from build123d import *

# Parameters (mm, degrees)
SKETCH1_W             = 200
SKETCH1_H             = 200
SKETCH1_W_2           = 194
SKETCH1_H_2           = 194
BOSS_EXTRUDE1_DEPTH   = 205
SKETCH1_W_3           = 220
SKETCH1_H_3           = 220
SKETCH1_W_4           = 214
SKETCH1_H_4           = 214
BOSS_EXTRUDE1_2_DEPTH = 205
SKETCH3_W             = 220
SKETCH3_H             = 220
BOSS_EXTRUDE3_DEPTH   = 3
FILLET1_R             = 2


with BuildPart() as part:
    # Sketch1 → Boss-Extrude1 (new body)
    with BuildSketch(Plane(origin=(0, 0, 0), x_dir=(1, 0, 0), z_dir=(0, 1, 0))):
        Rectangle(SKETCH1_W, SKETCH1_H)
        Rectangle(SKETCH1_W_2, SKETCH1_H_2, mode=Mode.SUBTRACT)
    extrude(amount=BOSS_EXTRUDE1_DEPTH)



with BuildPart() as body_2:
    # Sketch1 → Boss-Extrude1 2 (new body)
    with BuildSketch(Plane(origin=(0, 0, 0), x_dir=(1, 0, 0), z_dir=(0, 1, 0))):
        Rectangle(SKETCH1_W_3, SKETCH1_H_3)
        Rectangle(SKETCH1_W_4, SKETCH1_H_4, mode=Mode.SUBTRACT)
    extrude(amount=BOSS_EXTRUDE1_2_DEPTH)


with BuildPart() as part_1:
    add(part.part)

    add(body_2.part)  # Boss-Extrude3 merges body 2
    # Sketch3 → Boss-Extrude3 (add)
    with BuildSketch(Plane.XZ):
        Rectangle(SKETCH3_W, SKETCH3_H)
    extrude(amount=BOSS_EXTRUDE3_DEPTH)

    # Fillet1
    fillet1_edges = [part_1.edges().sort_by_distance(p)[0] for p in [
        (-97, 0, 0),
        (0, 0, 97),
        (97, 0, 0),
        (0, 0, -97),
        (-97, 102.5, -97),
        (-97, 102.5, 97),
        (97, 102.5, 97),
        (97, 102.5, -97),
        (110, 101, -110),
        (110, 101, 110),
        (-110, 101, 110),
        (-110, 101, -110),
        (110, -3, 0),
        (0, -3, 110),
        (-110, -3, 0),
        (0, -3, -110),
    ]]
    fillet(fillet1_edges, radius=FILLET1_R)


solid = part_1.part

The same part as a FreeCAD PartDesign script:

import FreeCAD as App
import Part
import Sketcher


def edges_at(feature, points):
    """Names of the edges that pass closest to the given points."""
    edges = feature.Shape.Edges
    near = lambda p: min(range(len(edges)), key=lambda i: edges[i].distToShape(Part.Vertex(*p))[0])
    return sorted({f"Edge{near(p) + 1}" for p in points})

doc = App.newDocument("Part")
body = doc.addObject("PartDesign::Body", "Body")

# Sketch on XZ plane
sketch1 = body.newObject("Sketcher::SketchObject", "Sketch")
sketch1.AttachmentSupport = (doc.getObject("XZ_Plane"), [""])
sketch1.MapMode = "FlatFace"
sketch1.addGeometry([
    Part.LineSegment(App.Vector(-100, -100, 0), App.Vector(-100, 100, 0)),  # 0
    Part.LineSegment(App.Vector(-100, 100, 0), App.Vector(100, 100, 0)),  # 1
    Part.LineSegment(App.Vector(100, 100, 0), App.Vector(100, -100, 0)),  # 2
    Part.LineSegment(App.Vector(100, -100, 0), App.Vector(-100, -100, 0)),  # 3
    Part.LineSegment(App.Vector(97, 97, 0), App.Vector(-97, 97, 0)),  # 4
    Part.LineSegment(App.Vector(-97, 97, 0), App.Vector(-97, -97, 0)),  # 5
    Part.LineSegment(App.Vector(-97, -97, 0), App.Vector(97, -97, 0)),  # 6
    Part.LineSegment(App.Vector(97, -97, 0), App.Vector(97, 97, 0)),  # 7
], False)
sketch1.addConstraint([
    Sketcher.Constraint("Coincident", 0, 2, 1, 1),
    Sketcher.Constraint("Coincident", 1, 2, 2, 1),
    Sketcher.Constraint("Coincident", 2, 2, 3, 1),
    Sketcher.Constraint("Coincident", 3, 2, 0, 1),
    Sketcher.Constraint("Coincident", 4, 2, 5, 1),
    Sketcher.Constraint("Coincident", 5, 2, 6, 1),
    Sketcher.Constraint("Coincident", 6, 2, 7, 1),
    Sketcher.Constraint("Coincident", 7, 2, 4, 1),
    Sketcher.Constraint("Vertical", 0),
    Sketcher.Constraint("Horizontal", 1),
    Sketcher.Constraint("Vertical", 2),
    Sketcher.Constraint("Horizontal", 3),
    Sketcher.Constraint("Horizontal", 4),
    Sketcher.Constraint("Vertical", 5),
    Sketcher.Constraint("Horizontal", 6),
    Sketcher.Constraint("Vertical", 7),
    Sketcher.Constraint("Symmetric", 0, 2, 2, 2, -1, 1),
    Sketcher.Constraint("Symmetric", 4, 2, 6, 2, -1, 1),
    Sketcher.Constraint("Equal", 3, 0),
    Sketcher.Constraint("Equal", 6, 5),
    Sketcher.Constraint("DistanceX", 1, 1, 1, 2, 200.0),
    Sketcher.Constraint("DistanceX", 4, 2, 4, 1, 194.0),
])
pad1 = body.newObject("PartDesign::Pad", "Pad")
pad1.Profile = sketch1
pad1.Length = 205
pad1.Reversed = True
body2 = doc.addObject("PartDesign::Body", "Body001")

# Sketch on XZ plane
sketch2 = body2.newObject("Sketcher::SketchObject", "Sketch001")
sketch2.AttachmentSupport = (doc.getObject("XZ_Plane001"), [""])
sketch2.MapMode = "FlatFace"
sketch2.addGeometry([
    Part.LineSegment(App.Vector(-110, -110, 0), App.Vector(-110, 110, 0)),  # 0
    Part.LineSegment(App.Vector(-110, 110, 0), App.Vector(110, 110, 0)),  # 1
    Part.LineSegment(App.Vector(110, 110, 0), App.Vector(110, -110, 0)),  # 2
    Part.LineSegment(App.Vector(110, -110, 0), App.Vector(-110, -110, 0)),  # 3
    Part.LineSegment(App.Vector(107, 107, 0), App.Vector(-107, 107, 0)),  # 4
    Part.LineSegment(App.Vector(-107, 107, 0), App.Vector(-107, -107, 0)),  # 5
    Part.LineSegment(App.Vector(-107, -107, 0), App.Vector(107, -107, 0)),  # 6
    Part.LineSegment(App.Vector(107, -107, 0), App.Vector(107, 107, 0)),  # 7
], False)
sketch2.addConstraint([
    Sketcher.Constraint("Coincident", 0, 2, 1, 1),
    Sketcher.Constraint("Coincident", 1, 2, 2, 1),
    Sketcher.Constraint("Coincident", 2, 2, 3, 1),
    Sketcher.Constraint("Coincident", 3, 2, 0, 1),
    Sketcher.Constraint("Coincident", 4, 2, 5, 1),
    Sketcher.Constraint("Coincident", 5, 2, 6, 1),
    Sketcher.Constraint("Coincident", 6, 2, 7, 1),
    Sketcher.Constraint("Coincident", 7, 2, 4, 1),
    Sketcher.Constraint("Vertical", 0),
    Sketcher.Constraint("Horizontal", 1),
    Sketcher.Constraint("Vertical", 2),
    Sketcher.Constraint("Horizontal", 3),
    Sketcher.Constraint("Horizontal", 4),
    Sketcher.Constraint("Vertical", 5),
    Sketcher.Constraint("Horizontal", 6),
    Sketcher.Constraint("Vertical", 7),
    Sketcher.Constraint("Symmetric", 0, 2, 2, 2, -1, 1),
    Sketcher.Constraint("Symmetric", 4, 2, 6, 2, -1, 1),
    Sketcher.Constraint("Equal", 3, 0),
    Sketcher.Constraint("Equal", 6, 5),
    Sketcher.Constraint("DistanceX", 1, 1, 1, 2, 220.0),
    Sketcher.Constraint("DistanceX", 4, 2, 4, 1, 214.0),
])
pad2 = body2.newObject("PartDesign::Pad", "Pad001")
pad2.Profile = sketch2
pad2.Length = 205
pad2.Reversed = True
body.AllowCompound = True
doc.recompute()

boolean = body.newObject("PartDesign::Boolean", "Boolean")
boolean.Type = "Fuse"
boolean.addObjects([body2])

# Sketch on XZ plane
sketch3 = body.newObject("Sketcher::SketchObject", "Sketch002")
sketch3.AttachmentSupport = (doc.getObject("XZ_Plane"), [""])
sketch3.MapMode = "FlatFace"
sketch3.addGeometry([
    Part.LineSegment(App.Vector(-110, 110, 0), App.Vector(-110, -110, 0)),
    Part.LineSegment(App.Vector(-110, -110, 0), App.Vector(110, -110, 0)),
    Part.LineSegment(App.Vector(110, -110, 0), App.Vector(110, 110, 0)),
    Part.LineSegment(App.Vector(110, 110, 0), App.Vector(-110, 110, 0)),
], False)
sketch3.addConstraint([
    Sketcher.Constraint("Coincident", 0, 2, 1, 1),
    Sketcher.Constraint("Coincident", 1, 2, 2, 1),
    Sketcher.Constraint("Coincident", 2, 2, 3, 1),
    Sketcher.Constraint("Coincident", 3, 2, 0, 1),
    Sketcher.Constraint("Vertical", 0),
    Sketcher.Constraint("Horizontal", 1),
    Sketcher.Constraint("Vertical", 2),
    Sketcher.Constraint("Horizontal", 3),
    Sketcher.Constraint("Symmetric", 0, 2, 2, 2, -1, 1),
    Sketcher.Constraint("Equal", 3, 0),
    Sketcher.Constraint("DistanceX", 1, 1, 1, 2, 220.0),
])
pad3 = body.newObject("PartDesign::Pad", "Pad002")
pad3.Profile = sketch3
pad3.Length = 3
doc.recompute()

fillet = body.newObject("PartDesign::Fillet", "Fillet")
fillet.Base = (pad3, edges_at(pad3, [
    (-97, 0, 0),
    (0, 0, 97),
    (97, 0, 0),
    (0, 0, -97),
    (-97, 102.5, -97),
    (-97, 102.5, 97),
    (97, 102.5, 97),
    (97, 102.5, -97),
    (110, 101, -110),
    (110, 101, 110),
    (-110, 101, 110),
    (-110, 101, -110),
    (110, -3, 0),
    (0, -3, 110),
    (-110, -3, 0),
    (0, -3, -110),
]))
fillet.Radius = 2

doc.recompute()
